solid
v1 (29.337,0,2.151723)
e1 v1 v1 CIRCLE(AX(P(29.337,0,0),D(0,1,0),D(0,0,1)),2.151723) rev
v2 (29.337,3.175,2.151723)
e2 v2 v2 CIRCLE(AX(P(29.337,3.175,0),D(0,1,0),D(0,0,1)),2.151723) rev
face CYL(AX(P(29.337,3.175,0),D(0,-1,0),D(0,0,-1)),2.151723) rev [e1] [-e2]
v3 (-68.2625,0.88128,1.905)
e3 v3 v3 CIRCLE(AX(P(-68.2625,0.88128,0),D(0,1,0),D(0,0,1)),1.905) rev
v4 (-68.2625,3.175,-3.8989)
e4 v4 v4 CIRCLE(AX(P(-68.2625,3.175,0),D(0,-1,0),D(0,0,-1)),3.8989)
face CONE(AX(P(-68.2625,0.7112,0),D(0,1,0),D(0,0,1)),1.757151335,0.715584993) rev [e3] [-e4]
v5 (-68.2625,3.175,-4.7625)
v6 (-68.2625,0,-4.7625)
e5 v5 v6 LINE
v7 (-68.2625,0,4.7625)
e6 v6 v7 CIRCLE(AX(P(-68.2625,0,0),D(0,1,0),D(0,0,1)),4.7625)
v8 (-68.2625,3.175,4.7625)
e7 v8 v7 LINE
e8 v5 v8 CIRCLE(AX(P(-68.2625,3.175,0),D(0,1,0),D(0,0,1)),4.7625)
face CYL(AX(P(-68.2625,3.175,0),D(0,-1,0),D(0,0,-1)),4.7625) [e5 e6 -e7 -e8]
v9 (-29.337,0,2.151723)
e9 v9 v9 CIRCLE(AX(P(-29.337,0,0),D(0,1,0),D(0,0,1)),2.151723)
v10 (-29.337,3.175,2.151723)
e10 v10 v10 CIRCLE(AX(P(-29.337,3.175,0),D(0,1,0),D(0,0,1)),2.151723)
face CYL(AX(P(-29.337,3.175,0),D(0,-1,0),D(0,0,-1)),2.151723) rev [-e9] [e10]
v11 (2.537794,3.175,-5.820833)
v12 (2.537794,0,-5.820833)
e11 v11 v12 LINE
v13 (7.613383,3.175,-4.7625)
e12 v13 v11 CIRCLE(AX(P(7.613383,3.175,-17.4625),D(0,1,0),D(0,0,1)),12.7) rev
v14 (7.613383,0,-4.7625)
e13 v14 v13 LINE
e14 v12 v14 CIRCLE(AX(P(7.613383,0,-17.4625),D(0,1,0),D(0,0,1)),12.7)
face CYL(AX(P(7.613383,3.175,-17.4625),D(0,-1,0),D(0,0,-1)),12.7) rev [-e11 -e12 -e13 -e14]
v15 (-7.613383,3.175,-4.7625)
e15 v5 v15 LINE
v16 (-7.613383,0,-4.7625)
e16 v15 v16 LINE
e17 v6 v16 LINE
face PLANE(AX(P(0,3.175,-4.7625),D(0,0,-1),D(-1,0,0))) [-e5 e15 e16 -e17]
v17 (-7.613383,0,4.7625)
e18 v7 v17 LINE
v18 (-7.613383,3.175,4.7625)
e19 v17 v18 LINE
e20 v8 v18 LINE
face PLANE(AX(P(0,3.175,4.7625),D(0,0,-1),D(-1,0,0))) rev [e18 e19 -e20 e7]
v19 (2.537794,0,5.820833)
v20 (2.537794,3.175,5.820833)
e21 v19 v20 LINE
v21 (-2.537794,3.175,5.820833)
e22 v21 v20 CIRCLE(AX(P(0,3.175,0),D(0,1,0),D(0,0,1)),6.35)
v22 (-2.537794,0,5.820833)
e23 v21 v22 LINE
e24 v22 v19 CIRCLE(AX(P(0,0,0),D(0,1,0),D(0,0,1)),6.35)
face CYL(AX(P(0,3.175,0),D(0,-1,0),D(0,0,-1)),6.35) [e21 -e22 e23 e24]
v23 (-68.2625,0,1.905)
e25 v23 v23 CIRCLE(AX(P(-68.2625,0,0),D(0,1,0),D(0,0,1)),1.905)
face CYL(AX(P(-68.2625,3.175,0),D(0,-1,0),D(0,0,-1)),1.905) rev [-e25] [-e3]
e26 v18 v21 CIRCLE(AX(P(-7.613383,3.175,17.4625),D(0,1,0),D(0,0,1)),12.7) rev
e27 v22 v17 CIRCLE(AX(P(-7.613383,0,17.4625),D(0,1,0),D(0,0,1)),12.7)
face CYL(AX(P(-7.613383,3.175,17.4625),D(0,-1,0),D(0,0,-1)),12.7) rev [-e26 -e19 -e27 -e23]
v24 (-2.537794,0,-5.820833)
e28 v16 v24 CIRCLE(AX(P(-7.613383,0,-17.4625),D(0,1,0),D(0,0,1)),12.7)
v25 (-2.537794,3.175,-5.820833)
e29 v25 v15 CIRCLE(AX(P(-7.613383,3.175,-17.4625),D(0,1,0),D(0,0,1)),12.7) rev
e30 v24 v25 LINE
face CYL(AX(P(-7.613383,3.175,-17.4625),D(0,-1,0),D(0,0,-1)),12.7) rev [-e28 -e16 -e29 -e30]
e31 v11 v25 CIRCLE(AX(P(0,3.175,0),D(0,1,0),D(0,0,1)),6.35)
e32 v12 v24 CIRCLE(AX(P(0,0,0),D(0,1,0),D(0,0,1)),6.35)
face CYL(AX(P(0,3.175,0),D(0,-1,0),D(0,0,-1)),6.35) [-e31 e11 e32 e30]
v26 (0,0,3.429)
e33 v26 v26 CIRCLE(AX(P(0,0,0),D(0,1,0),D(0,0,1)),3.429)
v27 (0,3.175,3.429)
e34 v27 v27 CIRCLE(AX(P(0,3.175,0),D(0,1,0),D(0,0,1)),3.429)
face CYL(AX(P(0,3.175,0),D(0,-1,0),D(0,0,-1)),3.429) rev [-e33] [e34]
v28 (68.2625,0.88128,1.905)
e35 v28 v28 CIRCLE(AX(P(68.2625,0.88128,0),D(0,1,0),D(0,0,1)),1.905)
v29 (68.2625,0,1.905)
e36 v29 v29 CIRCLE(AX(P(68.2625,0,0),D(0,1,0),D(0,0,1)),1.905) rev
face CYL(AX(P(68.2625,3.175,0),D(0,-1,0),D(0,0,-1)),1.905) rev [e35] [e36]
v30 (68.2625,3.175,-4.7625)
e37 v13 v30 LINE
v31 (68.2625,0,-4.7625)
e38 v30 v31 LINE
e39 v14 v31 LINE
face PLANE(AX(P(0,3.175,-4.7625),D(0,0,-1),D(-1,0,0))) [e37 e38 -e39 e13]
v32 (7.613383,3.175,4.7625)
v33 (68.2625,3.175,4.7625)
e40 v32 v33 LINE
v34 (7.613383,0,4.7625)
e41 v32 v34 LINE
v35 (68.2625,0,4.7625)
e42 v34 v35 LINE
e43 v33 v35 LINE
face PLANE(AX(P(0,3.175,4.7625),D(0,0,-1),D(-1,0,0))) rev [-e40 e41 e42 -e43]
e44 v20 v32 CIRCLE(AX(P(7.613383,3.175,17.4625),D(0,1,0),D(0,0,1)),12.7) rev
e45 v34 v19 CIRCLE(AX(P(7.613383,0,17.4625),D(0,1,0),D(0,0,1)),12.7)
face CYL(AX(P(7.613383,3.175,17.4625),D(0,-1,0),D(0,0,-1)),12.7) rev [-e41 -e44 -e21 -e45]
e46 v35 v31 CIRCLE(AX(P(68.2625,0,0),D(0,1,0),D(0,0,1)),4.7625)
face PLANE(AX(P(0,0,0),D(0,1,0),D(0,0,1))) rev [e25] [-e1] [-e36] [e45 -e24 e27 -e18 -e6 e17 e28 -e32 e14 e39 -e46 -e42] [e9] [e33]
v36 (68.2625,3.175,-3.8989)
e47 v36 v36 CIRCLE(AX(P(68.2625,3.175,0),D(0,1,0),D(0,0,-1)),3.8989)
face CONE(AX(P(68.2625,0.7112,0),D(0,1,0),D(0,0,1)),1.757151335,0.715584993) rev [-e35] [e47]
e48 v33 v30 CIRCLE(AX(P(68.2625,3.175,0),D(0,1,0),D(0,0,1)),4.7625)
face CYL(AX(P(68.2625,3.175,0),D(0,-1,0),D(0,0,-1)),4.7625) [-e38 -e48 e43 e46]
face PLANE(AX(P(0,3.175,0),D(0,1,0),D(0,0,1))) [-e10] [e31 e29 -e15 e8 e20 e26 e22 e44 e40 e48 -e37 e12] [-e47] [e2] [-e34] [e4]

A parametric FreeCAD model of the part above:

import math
import FreeCAD as App
import Part
import Sketcher
Q = App.Units.Quantity


def edges_at(feature, points):
    """Names of the edges that pass closest to the given points."""
    edges = feature.Shape.Edges
    near = lambda p: min(range(len(edges)), key=lambda i: edges[i].distToShape(Part.Vertex(*p))[0])
    return sorted({f"Edge{near(p) + 1}" for p in points})

doc = App.newDocument("Part")
body = doc.addObject("PartDesign::Body", "Body")

# Sketch on XZ plane
sketch1 = doc.addObject("Sketcher::SketchObject", "Sketch")
body.addObject(sketch1)
sketch1.AttachmentSupport = (doc.XZ_Plane, [""])
sketch1.MapMode = "FlatFace"
sketch1.addGeometry(Part.LineSegment(App.Vector(-4.20013, -4.7625, 0), App.Vector(-68.2625, -4.7625, 0)), False)
sketch1.addGeometry(Part.ArcOfCircle(Part.Circle(App.Vector(-68.2625, 0, 0), App.Vector(0, 0, 1), 4.7625), math.radians(90), math.radians(270)), False)
sketch1.addGeometry(Part.LineSegment(App.Vector(-68.2625, 4.7625, 0), App.Vector(-4.20013, 4.7625, 0)), False)
sketch1.addGeometry(Part.ArcOfCircle(Part.Circle(App.Vector(0, 0, 0), App.Vector(0, 0, 1), 6.35), math.radians(48.590378), math.radians(131.409622)), False)
sketch1.addGeometry(Part.LineSegment(App.Vector(4.20013, 4.7625, 0), App.Vector(68.2625, 4.7625, 0)), False)
sketch1.addGeometry(Part.ArcOfCircle(Part.Circle(App.Vector(68.2625, 0, 0), App.Vector(0, 0, 1), 4.7625), math.radians(-90), math.radians(90)), False)
sketch1.addGeometry(Part.LineSegment(App.Vector(68.2625, -4.7625, 0), App.Vector(4.20013, -4.7625, 0)), False)
sketch1.addGeometry(Part.ArcOfCircle(Part.Circle(App.Vector(0, 0, 0), App.Vector(0, 0, 1), 6.35), math.radians(-131.409622), math.radians(-48.590378)), False)
sketch1.addGeometry(Part.Circle(App.Vector(-68.2625, 0, 0), App.Vector(0, 0, 1), 1.905), False)
sketch1.addGeometry(Part.Circle(App.Vector(-29.337, 0, 0), App.Vector(0, 0, 1), 2.151723), False)
sketch1.addGeometry(Part.Circle(App.Vector(0, 0, 0), App.Vector(0, 0, 1), 3.429), False)
sketch1.addGeometry(Part.Circle(App.Vector(29.337, 0, 0), App.Vector(0, 0, 1), 2.151723), False)
sketch1.addGeometry(Part.Circle(App.Vector(68.2625, 0, 0), App.Vector(0, 0, 1), 1.905), False)
sketch1.addConstraint(Sketcher.Constraint("Tangent", 0, 2, 1, 2))
sketch1.addConstraint(Sketcher.Constraint("Tangent", 1, 1, 2, 1))
sketch1.addConstraint(Sketcher.Constraint("Coincident", 2, 2, 3, 2))
sketch1.addConstraint(Sketcher.Constraint("Coincident", 3, 1, 4, 1))
sketch1.addConstraint(Sketcher.Constraint("Tangent", 4, 2, 5, 2))
sketch1.addConstraint(Sketcher.Constraint("Tangent", 5, 1, 6, 1))
sketch1.addConstraint(Sketcher.Constraint("Coincident", 6, 2, 7, 2))
sketch1.addConstraint(Sketcher.Constraint("Coincident", 7, 1, 0, 1))
sketch1.addConstraint(Sketcher.Constraint("Horizontal", 0))
sketch1.addConstraint(Sketcher.Constraint("Horizontal", 2))
sketch1.addConstraint(Sketcher.Constraint("Horizontal", 4))
sketch1.addConstraint(Sketcher.Constraint("Horizontal", 6))
sketch1.addConstraint(Sketcher.Constraint("Coincident", 3, 3, -1, 1))
sketch1.addConstraint(Sketcher.Constraint("Coincident", 7, 3, -1, 1))
sketch1.addConstraint(Sketcher.Constraint("Coincident", 10, 3, -1, 1))
sketch1.addConstraint(Sketcher.Constraint("Coincident", 8, 3, 1, 3))
sketch1.addConstraint(Sketcher.Constraint("Coincident", 12, 3, 5, 3))
sketch1.addConstraint(Sketcher.Constraint("Equal", 1, 5))
sketch1.addConstraint(Sketcher.Constraint("Equal", 3, 7))
sketch1.addConstraint(Sketcher.Constraint("Equal", 9, 11))
sketch1.addConstraint(Sketcher.Constraint("Equal", 8, 12))
sketch1.addConstraint(Sketcher.Constraint("Symmetric", 1, 3, 5, 3, -1, 1))
sketch1.addConstraint(Sketcher.Constraint("Symmetric", 9, 3, 11, 3, -1, 1))
sketch1.addConstraint(Sketcher.Constraint("PointOnObject", 1, 3, -1))
sketch1.addConstraint(Sketcher.Constraint("PointOnObject", 9, 3, -1))
sketch1.addConstraint(Sketcher.Constraint("Diameter", 8, Q("0.15 in")))
sketch1.addConstraint(Sketcher.Constraint("Diameter", 10, Q("0.27 in")))
sketch1.addConstraint(Sketcher.Constraint("Radius", 3, Q("0.25 in")))
sketch1.addConstraint(Sketcher.Constraint("Radius", 1, Q("0.1875 in")))
sketch1.addConstraint(Sketcher.Constraint("DistanceX", 9, 3, 11, 3, Q("2.31 in")))
sketch1.addConstraint(Sketcher.Constraint("DistanceX", 1, 3, -1, 1, Q("2.6875 in")))
sketch1.addConstraint(Sketcher.Constraint("Diameter", 9, Q("4.303446 mm")))
pad1 = doc.addObject("PartDesign::Pad", "Pad")
body.addObject(pad1)
pad1.Profile = sketch1
pad1.Length = Q("0.125 in")
pad1.Reversed = True
doc.recompute()

fillet = doc.addObject("PartDesign::Fillet", "Fillet")
body.addObject(fillet)
fillet.Base = (pad1, edges_at(pad1, [
    (-4.2, 1.587, -4.763),
    (4.2, 1.587, -4.763),
    (4.2, 1.587, 4.763),
    (-4.2, 1.587, 4.763),
]))
fillet.Radius = Q("0.5 in")

# Sketch on XY plane
sketch2 = doc.addObject("Sketcher::SketchObject", "Sketch001")
body.addObject(sketch2)
sketch2.AttachmentSupport = (doc.XY_Plane, [""])
sketch2.MapMode = "FlatFace"
sketch2.addGeometry(Part.LineSegment(App.Vector(-66.505349, 0.7112, 0), App.Vector(-64.3636, 3.175, 0)), False)
sketch2.addGeometry(Part.LineSegment(App.Vector(-64.3636, 3.175, 0), App.Vector(-66.505349, 3.175, 0)), False)
sketch2.addGeometry(Part.LineSegment(App.Vector(-66.505349, 3.175, 0), App.Vector(-66.505349, 0.7112, 0)), False)
sketch2.addGeometry(Part.LineSegment(App.Vector(-68.2625, 0.7112, 0), App.Vector(-68.2625, 3.175, 0)), True)  # axis
sketch2.addConstraint(Sketcher.Constraint("Coincident", 0, 2, 1, 1))
sketch2.addConstraint(Sketcher.Constraint("Coincident", 1, 2, 2, 1))
sketch2.addConstraint(Sketcher.Constraint("Coincident", 2, 2, 0, 1))
sketch2.addConstraint(Sketcher.Constraint("Horizontal", 1))
sketch2.addConstraint(Sketcher.Constraint("Vertical", 2))
sketch2.addConstraint(Sketcher.Constraint("Vertical", 3))
sketch2.addConstraint(Sketcher.Constraint("Horizontal", 2, 2, 3, 1))
sketch2.addConstraint(Sketcher.Constraint("Horizontal", 1, 2, 3, 2))
sketch2.addConstraint(Sketcher.Constraint("Angle", 0, Q("49 deg")))
sketch2.addConstraint(Sketcher.Constraint("DistanceY", 2, 2, 2, 1, Q("0.097 in")))
sketch2.addConstraint(Sketcher.Constraint("DistanceX", 0, 2, -1, 1, Q("2.534 in")))
sketch2.addConstraint(Sketcher.Constraint("DistanceY", -1, 1, 0, 2, Q("0.125 in")))
sketch2.addConstraint(Sketcher.Constraint("DistanceX", 3, 1, -1, 1, Q("2.6875 in")))
groove = doc.addObject("PartDesign::Groove", "Groove")
body.addObject(groove)
groove.Profile = sketch2
groove.ReferenceAxis = (sketch2, ["Axis0"])
groove.Angle = 360
doc.recompute()

mirrored = doc.addObject("PartDesign::Mirrored", "Mirrored")
body.addObject(mirrored)
mirrored.Originals = [groove]
mirrored.MirrorPlane = (doc.YZ_Plane, [""])
body.Tip = mirrored

doc.recompute()
